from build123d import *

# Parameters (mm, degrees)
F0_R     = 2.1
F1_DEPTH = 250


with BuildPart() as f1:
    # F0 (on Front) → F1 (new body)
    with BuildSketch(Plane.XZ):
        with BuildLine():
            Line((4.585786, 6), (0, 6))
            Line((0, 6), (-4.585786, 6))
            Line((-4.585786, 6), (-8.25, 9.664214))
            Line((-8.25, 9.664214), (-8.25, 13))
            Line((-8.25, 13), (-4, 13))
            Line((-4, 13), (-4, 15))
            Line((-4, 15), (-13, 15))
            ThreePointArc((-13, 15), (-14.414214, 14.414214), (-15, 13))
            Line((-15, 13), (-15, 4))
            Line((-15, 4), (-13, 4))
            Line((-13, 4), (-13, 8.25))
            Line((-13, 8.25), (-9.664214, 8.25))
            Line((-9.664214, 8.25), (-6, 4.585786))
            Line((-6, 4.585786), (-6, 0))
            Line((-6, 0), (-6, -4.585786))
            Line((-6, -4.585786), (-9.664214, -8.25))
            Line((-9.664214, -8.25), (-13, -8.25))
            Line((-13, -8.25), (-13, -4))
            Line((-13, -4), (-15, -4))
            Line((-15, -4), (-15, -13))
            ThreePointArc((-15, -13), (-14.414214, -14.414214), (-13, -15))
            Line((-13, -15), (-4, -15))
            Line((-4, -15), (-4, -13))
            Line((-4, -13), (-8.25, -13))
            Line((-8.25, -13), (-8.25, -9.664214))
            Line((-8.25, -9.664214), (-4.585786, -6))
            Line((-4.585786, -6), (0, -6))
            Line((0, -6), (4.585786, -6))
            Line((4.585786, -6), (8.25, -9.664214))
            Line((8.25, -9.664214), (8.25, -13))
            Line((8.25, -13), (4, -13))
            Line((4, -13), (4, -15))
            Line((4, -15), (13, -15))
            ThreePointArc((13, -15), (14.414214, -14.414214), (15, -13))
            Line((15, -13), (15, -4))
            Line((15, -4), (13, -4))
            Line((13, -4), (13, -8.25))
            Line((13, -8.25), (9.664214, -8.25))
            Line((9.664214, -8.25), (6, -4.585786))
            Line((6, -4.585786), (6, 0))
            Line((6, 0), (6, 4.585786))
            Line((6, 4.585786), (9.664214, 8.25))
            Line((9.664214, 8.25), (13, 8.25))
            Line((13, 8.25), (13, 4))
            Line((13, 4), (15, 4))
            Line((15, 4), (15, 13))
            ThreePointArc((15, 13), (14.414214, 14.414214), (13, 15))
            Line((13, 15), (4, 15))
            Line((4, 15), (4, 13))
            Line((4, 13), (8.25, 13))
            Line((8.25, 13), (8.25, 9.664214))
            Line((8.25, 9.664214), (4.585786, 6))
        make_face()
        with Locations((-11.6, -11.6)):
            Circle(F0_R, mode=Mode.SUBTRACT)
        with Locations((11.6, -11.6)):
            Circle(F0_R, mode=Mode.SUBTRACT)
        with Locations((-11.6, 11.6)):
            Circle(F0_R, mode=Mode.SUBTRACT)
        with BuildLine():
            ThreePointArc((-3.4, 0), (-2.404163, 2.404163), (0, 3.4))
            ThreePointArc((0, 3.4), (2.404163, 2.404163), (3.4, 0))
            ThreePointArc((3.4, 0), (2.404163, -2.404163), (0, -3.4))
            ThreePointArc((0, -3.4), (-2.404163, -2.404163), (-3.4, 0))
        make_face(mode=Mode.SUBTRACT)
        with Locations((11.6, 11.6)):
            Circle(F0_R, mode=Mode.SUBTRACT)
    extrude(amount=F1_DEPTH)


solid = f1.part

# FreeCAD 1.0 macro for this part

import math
import FreeCAD as App
import Part
import Sketcher

V = App.Vector

doc = App.newDocument("Part")
body = doc.addObject("PartDesign::Body", "Body")

# Sketch on XZ plane
sketch1 = body.newObject("Sketcher::SketchObject", "Sketch")
sketch1.AttachmentSupport = (doc.getObject("XZ_Plane"), [""])
sketch1.MapMode = "FlatFace"
sketch1.addGeometry([
    Part.LineSegment(V(4.6, 6, 0), V(-4.6, 6, 0)),  # 0
    Part.LineSegment(V(-4.6, 6, 0), V(-8.2, 9.7, 0)),  # 1
    Part.LineSegment(V(-8.2, 9.7, 0), V(-8.2, 13, 0)),  # 2
    Part.LineSegment(V(-8.2, 13, 0), V(-4, 13, 0)),  # 3
    Part.LineSegment(V(-4, 13, 0), V(-4, 15, 0)),  # 4
    Part.LineSegment(V(-4, 15, 0), V(-13, 15, 0)),  # 5
    Part.ArcOfCircle(Part.Circle(V(-13, 13, 0), V(0, 0, 1), 2), math.radians(90), math.radians(180)),  # 6
    Part.LineSegment(V(-15, 13, 0), V(-15, 4, 0)),  # 7
    Part.LineSegment(V(-15, 4, 0), V(-13, 4, 0)),  # 8
    Part.LineSegment(V(-13, 4, 0), V(-13, 8.2, 0)),  # 9
    Part.LineSegment(V(-13, 8.2, 0), V(-9.7, 8.2, 0)),  # 10
    Part.LineSegment(V(-9.7, 8.2, 0), V(-6, 4.6, 0)),  # 11
    Part.LineSegment(V(-6, 4.6, 0), V(-6, -4.6, 0)),  # 12
    Part.LineSegment(V(-6, -4.6, 0), V(-9.7, -8.2, 0)),  # 13
    Part.LineSegment(V(-9.7, -8.2, 0), V(-13, -8.2, 0)),  # 14
    Part.LineSegment(V(-13, -8.2, 0), V(-13, -4, 0)),  # 15
    Part.LineSegment(V(-13, -4, 0), V(-15, -4, 0)),  # 16
    Part.LineSegment(V(-15, -4, 0), V(-15, -13, 0)),  # 17
    Part.ArcOfCircle(Part.Circle(V(-13, -13, 0), V(0, 0, 1), 2), math.radians(180), math.radians(270)),  # 18
    Part.LineSegment(V(-13, -15, 0), V(-4, -15, 0)),  # 19
    Part.LineSegment(V(-4, -15, 0), V(-4, -13, 0)),  # 20
    Part.LineSegment(V(-4, -13, 0), V(-8.2, -13, 0)),  # 21
    Part.LineSegment(V(-8.2, -13, 0), V(-8.2, -9.7, 0)),  # 22
    Part.LineSegment(V(-8.2, -9.7, 0), V(-4.6, -6, 0)),  # 23
    Part.LineSegment(V(-4.6, -6, 0), V(4.6, -6, 0)),  # 24
    Part.LineSegment(V(4.6, -6, 0), V(8.2, -9.7, 0)),  # 25
    Part.LineSegment(V(8.2, -9.7, 0), V(8.2, -13, 0)),  # 26
    Part.LineSegment(V(8.2, -13, 0), V(4, -13, 0)),  # 27
    Part.LineSegment(V(4, -13, 0), V(4, -15, 0)),  # 28
    Part.LineSegment(V(4, -15, 0), V(13, -15, 0)),  # 29
    Part.ArcOfCircle(Part.Circle(V(13, -13, 0), V(0, 0, 1), 2), math.radians(-90), math.radians(0)),  # 30
    Part.LineSegment(V(15, -13, 0), V(15, -4, 0)),  # 31
    Part.LineSegment(V(15, -4, 0), V(13, -4, 0)),  # 32
    Part.LineSegment(V(13, -4, 0), V(13, -8.2, 0)),  # 33
    Part.LineSegment(V(13, -8.2, 0), V(9.7, -8.2, 0)),  # 34
    Part.LineSegment(V(9.7, -8.2, 0), V(6, -4.6, 0)),  # 35
    Part.LineSegment(V(6, -4.6, 0), V(6, 4.6, 0)),  # 36
    Part.LineSegment(V(6, 4.6, 0), V(9.7, 8.2, 0)),  # 37
    Part.LineSegment(V(9.7, 8.2, 0), V(13, 8.2, 0)),  # 38
    Part.LineSegment(V(13, 8.2, 0), V(13, 4, 0)),  # 39
    Part.LineSegment(V(13, 4, 0), V(15, 4, 0)),  # 40
    Part.LineSegment(V(15, 4, 0), V(15, 13, 0)),  # 41
    Part.ArcOfCircle(Part.Circle(V(13, 13, 0), V(0, 0, 1), 2), math.radians(0), math.radians(90)),  # 42
    Part.LineSegment(V(13, 15, 0), V(4, 15, 0)),  # 43
    Part.LineSegment(V(4, 15, 0), V(4, 13, 0)),  # 44
    Part.LineSegment(V(4, 13, 0), V(8.2, 13, 0)),  # 45
    Part.LineSegment(V(8.2, 13, 0), V(8.2, 9.7, 0)),  # 46
    Part.LineSegment(V(8.2, 9.7, 0), V(4.6, 6, 0)),  # 47
    Part.Circle(V(-11.6, -11.6, 0), V(0, 0, 1), 2.1),  # 48
    Part.Circle(V(11.6, -11.6, 0), V(0, 0, 1), 2.1),  # 49
    Part.Circle(V(-11.6, 11.6, 0), V(0, 0, 1), 2.1),  # 50
    Part.ArcOfCircle(Part.Circle(V(0, 0, 0), V(0, 0, 1), 3.4), math.radians(-180), math.radians(-90)),  # 51
    Part.ArcOfCircle(Part.Circle(V(0, 0, 0), V(0, 0, 1), 3.4), math.radians(90), math.radians(180)),  # 52
    Part.ArcOfCircle(Part.Circle(V(0, 0, 0), V(0, 0, 1), 3.4), math.radians(0), math.radians(90)),  # 53
    Part.ArcOfCircle(Part.Circle(V(0, 0, 0), V(0, 0, 1), 3.4), math.radians(-90), math.radians(0)),  # 54
    Part.Circle(V(11.6, 11.6, 0), V(0, 0, 1), 2.1),  # 55
], False)
sketch1.addConstraint([
    Sketcher.Constraint("Coincident", 0, 2, 1, 1),
    Sketcher.Constraint("Coincident", 1, 2, 2, 1),
    Sketcher.Constraint("Coincident", 2, 2, 3, 1),
    Sketcher.Constraint("Coincident", 3, 2, 4, 1),
    Sketcher.Constraint("Coincident", 4, 2, 5, 1),
    Sketcher.Constraint("Tangent", 5, 2, 6, 1),
    Sketcher.Constraint("Tangent", 6, 2, 7, 1),
    Sketcher.Constraint("Coincident", 7, 2, 8, 1),
    Sketcher.Constraint("Coincident", 8, 2, 9, 1),
    Sketcher.Constraint("Coincident", 9, 2, 10, 1),
    Sketcher.Constraint("Coincident", 10, 2, 11, 1),
    Sketcher.Constraint("Coincident", 11, 2, 12, 1),
    Sketcher.Constraint("Coincident", 12, 2, 13, 1),
    Sketcher.Constraint("Coincident", 13, 2, 14, 1),
    Sketcher.Constraint("Coincident", 14, 2, 15, 1),
    Sketcher.Constraint("Coincident", 15, 2, 16, 1),
    Sketcher.Constraint("Coincident", 16, 2, 17, 1),
    Sketcher.Constraint("Tangent", 17, 2, 18, 1),
    Sketcher.Constraint("Tangent", 18, 2, 19, 1),
    Sketcher.Constraint("Coincident", 19, 2, 20, 1),
    Sketcher.Constraint("Coincident", 20, 2, 21, 1),
    Sketcher.Constraint("Coincident", 21, 2, 22, 1),
    Sketcher.Constraint("Coincident", 22, 2, 23, 1),
    Sketcher.Constraint("Coincident", 23, 2, 24, 1),
    Sketcher.Constraint("Coincident", 24, 2, 25, 1),
    Sketcher.Constraint("Coincident", 25, 2, 26, 1),
    Sketcher.Constraint("Coincident", 26, 2, 27, 1),
    Sketcher.Constraint("Coincident", 27, 2, 28, 1),
    Sketcher.Constraint("Coincident", 28, 2, 29, 1),
    Sketcher.Constraint("Tangent", 29, 2, 30, 1),
    Sketcher.Constraint("Tangent", 30, 2, 31, 1),
    Sketcher.Constraint("Coincident", 31, 2, 32, 1),
    Sketcher.Constraint("Coincident", 32, 2, 33, 1),
    Sketcher.Constraint("Coincident", 33, 2, 34, 1),
    Sketcher.Constraint("Coincident", 34, 2, 35, 1),
    Sketcher.Constraint("Coincident", 35, 2, 36, 1),
    Sketcher.Constraint("Coincident", 36, 2, 37, 1),
    Sketcher.Constraint("Coincident", 37, 2, 38, 1),
    Sketcher.Constraint("Coincident", 38, 2, 39, 1),
    Sketcher.Constraint("Coincident", 39, 2, 40, 1),
    Sketcher.Constraint("Coincident", 40, 2, 41, 1),
    Sketcher.Constraint("Tangent", 41, 2, 42, 1),
    Sketcher.Constraint("Tangent", 42, 2, 43, 1),
    Sketcher.Constraint("Coincident", 43, 2, 44, 1),
    Sketcher.Constraint("Coincident", 44, 2, 45, 1),
    Sketcher.Constraint("Coincident", 45, 2, 46, 1),
    Sketcher.Constraint("Coincident", 46, 2, 47, 1),
    Sketcher.Constraint("Coincident", 47, 2, 0, 1),
    Sketcher.Constraint("Tangent", 51, 1, 52, 2),
    Sketcher.Constraint("Tangent", 52, 1, 53, 2),
    Sketcher.Constraint("Tangent", 53, 1, 54, 2),
    Sketcher.Constraint("Tangent", 54, 1, 51, 2),
    Sketcher.Constraint("Horizontal", 0),
    Sketcher.Constraint("Vertical", 2),
    Sketcher.Constraint("Horizontal", 3),
    Sketcher.Constraint("Vertical", 4),
    Sketcher.Constraint("Horizontal", 5),
    Sketcher.Constraint("Vertical", 7),
    Sketcher.Constraint("Horizontal", 8),
    Sketcher.Constraint("Vertical", 9),
    Sketcher.Constraint("Horizontal", 10),
    Sketcher.Constraint("Vertical", 12),
    Sketcher.Constraint("Horizontal", 14),
    Sketcher.Constraint("Vertical", 15),
    Sketcher.Constraint("Horizontal", 16),
    Sketcher.Constraint("Vertical", 17),
    Sketcher.Constraint("Horizontal", 19),
    Sketcher.Constraint("Vertical", 20),
    Sketcher.Constraint("Horizontal", 21),
    Sketcher.Constraint("Vertical", 22),
    Sketcher.Constraint("Horizontal", 24),
    Sketcher.Constraint("Vertical", 26),
    Sketcher.Constraint("Horizontal", 27),
    Sketcher.Constraint("Vertical", 28),
    Sketcher.Constraint("Horizontal", 29),
    Sketcher.Constraint("Vertical", 31),
    Sketcher.Constraint("Horizontal", 32),
    Sketcher.Constraint("Vertical", 33),
    Sketcher.Constraint("Horizontal", 34),
    Sketcher.Constraint("Vertical", 36),
    Sketcher.Constraint("Horizontal", 38),
    Sketcher.Constraint("Vertical", 39),
    Sketcher.Constraint("Horizontal", 40),
    Sketcher.Constraint("Vertical", 41),
    Sketcher.Constraint("Horizontal", 43),
    Sketcher.Constraint("Vertical", 44),
    Sketcher.Constraint("Horizontal", 45),
    Sketcher.Constraint("Vertical", 46),
    Sketcher.Constraint("Coincident", 51, 3, -1, 1),
    Sketcher.Constraint("Equal", 6, 18),
    Sketcher.Constraint("Equal", 18, 30),
    Sketcher.Constraint("Equal", 30, 42),
    Sketcher.Constraint("Equal", 48, 49),
    Sketcher.Constraint("Equal", 49, 50),
    Sketcher.Constraint("Equal", 51, 52),
    Sketcher.Constraint("Equal", 50, 55),
    Sketcher.Constraint("Symmetric", 6, 3, 30, 3, -1, 1),
    Sketcher.Constraint("Symmetric", 18, 3, 42, 3, -1, 1),
    Sketcher.Constraint("Symmetric", 49, 3, 50, 3, -1, 1),
    Sketcher.Constraint("Symmetric", 48, 3, 55, 3, -1, 1),
    Sketcher.Constraint("Symmetric", 0, 2, 24, 2, -1, 1),
    Sketcher.Constraint("Symmetric", 1, 2, 25, 2, -1, 1),
    Sketcher.Constraint("Symmetric", 3, 2, 27, 2, -1, 1),
    Sketcher.Constraint("Symmetric", 8, 2, 32, 2, -1, 1),
    Sketcher.Constraint("Symmetric", 10, 2, 34, 2, -1, 1),
    Sketcher.Constraint("Symmetric", 11, 2, 35, 2, -1, 1),
    Sketcher.Constraint("Symmetric", 13, 2, 37, 2, -1, 1),
    Sketcher.Constraint("Symmetric", 15, 2, 39, 2, -1, 1),
    Sketcher.Constraint("Symmetric", 20, 2, 44, 2, -1, 1),
    Sketcher.Constraint("Symmetric", 22, 2, 46, 2, -1, 1),
    Sketcher.Constraint("Symmetric", 18, 3, 30, 3, -2),
    Sketcher.Constraint("Symmetric", 48, 3, 49, 3, -2),
    Sketcher.Constraint("Symmetric", 22, 2, 25, 2, -2),
    Sketcher.Constraint("Symmetric", 20, 2, 27, 2, -2),
    Sketcher.Constraint("Symmetric", 15, 2, 32, 2, -2),
    Sketcher.Constraint("Symmetric", 13, 2, 34, 2, -2),
    Sketcher.Constraint("PointOnObject", 51, 1, -1),
    Sketcher.Constraint("PointOnObject", 52, 1, -2),
    Sketcher.Constraint("PointOnObject", 53, 1, -1),
    Sketcher.Constraint("PointOnObject", 54, 1, -2),
    Sketcher.Constraint("Parallel", 1, 11),
    Sketcher.Constraint("Perpendicular", 11, 13),
    Sketcher.Constraint("Parallel", 13, 23),
    Sketcher.Constraint("Perpendicular", 35, 37),
    Sketcher.Constraint("Parallel", 37, 47),
    Sketcher.Constraint("Horizontal", 42, 3, 2, 2),
    Sketcher.Constraint("Horizontal", 12, 2, 35, 2),
    Sketcher.Constraint("Vertical", 5, 2, 8, 2),
    Sketcher.Constraint("Equal", 38, 2),
    Sketcher.Constraint("Equal", 43, 7),
    Sketcher.Constraint("Equal", 45, 9),
    Sketcher.Constraint("Equal", 24, 12),
    Sketcher.Constraint("Equal", 1, 11),
    Sketcher.Constraint("Radius", 6, 1.999999),
    Sketcher.Constraint("Diameter", 48, 4.2),
    Sketcher.Constraint("Radius", 51, 3.4),
    Sketcher.Constraint("DistanceX", 5, 2, 5, 1, 9.0),
    Sketcher.Constraint("DistanceX", 6, 3, -1, 1, 13.000001),
    Sketcher.Constraint("DistanceY", -1, 1, 0, 2, 6.0),
    Sketcher.Constraint("DistanceX", 3, 1, 3, 2, 4.25),
    Sketcher.Constraint("DistanceX", 48, 3, -1, 1, 11.6),
    Sketcher.Constraint("DistanceY", 48, 3, -1, 1, 11.6),
    Sketcher.Constraint("Distance", 1, 5.181981),
])
pad1 = body.newObject("PartDesign::Pad", "Pad")
pad1.Profile = sketch1
pad1.Length = 250

doc.recompute()
